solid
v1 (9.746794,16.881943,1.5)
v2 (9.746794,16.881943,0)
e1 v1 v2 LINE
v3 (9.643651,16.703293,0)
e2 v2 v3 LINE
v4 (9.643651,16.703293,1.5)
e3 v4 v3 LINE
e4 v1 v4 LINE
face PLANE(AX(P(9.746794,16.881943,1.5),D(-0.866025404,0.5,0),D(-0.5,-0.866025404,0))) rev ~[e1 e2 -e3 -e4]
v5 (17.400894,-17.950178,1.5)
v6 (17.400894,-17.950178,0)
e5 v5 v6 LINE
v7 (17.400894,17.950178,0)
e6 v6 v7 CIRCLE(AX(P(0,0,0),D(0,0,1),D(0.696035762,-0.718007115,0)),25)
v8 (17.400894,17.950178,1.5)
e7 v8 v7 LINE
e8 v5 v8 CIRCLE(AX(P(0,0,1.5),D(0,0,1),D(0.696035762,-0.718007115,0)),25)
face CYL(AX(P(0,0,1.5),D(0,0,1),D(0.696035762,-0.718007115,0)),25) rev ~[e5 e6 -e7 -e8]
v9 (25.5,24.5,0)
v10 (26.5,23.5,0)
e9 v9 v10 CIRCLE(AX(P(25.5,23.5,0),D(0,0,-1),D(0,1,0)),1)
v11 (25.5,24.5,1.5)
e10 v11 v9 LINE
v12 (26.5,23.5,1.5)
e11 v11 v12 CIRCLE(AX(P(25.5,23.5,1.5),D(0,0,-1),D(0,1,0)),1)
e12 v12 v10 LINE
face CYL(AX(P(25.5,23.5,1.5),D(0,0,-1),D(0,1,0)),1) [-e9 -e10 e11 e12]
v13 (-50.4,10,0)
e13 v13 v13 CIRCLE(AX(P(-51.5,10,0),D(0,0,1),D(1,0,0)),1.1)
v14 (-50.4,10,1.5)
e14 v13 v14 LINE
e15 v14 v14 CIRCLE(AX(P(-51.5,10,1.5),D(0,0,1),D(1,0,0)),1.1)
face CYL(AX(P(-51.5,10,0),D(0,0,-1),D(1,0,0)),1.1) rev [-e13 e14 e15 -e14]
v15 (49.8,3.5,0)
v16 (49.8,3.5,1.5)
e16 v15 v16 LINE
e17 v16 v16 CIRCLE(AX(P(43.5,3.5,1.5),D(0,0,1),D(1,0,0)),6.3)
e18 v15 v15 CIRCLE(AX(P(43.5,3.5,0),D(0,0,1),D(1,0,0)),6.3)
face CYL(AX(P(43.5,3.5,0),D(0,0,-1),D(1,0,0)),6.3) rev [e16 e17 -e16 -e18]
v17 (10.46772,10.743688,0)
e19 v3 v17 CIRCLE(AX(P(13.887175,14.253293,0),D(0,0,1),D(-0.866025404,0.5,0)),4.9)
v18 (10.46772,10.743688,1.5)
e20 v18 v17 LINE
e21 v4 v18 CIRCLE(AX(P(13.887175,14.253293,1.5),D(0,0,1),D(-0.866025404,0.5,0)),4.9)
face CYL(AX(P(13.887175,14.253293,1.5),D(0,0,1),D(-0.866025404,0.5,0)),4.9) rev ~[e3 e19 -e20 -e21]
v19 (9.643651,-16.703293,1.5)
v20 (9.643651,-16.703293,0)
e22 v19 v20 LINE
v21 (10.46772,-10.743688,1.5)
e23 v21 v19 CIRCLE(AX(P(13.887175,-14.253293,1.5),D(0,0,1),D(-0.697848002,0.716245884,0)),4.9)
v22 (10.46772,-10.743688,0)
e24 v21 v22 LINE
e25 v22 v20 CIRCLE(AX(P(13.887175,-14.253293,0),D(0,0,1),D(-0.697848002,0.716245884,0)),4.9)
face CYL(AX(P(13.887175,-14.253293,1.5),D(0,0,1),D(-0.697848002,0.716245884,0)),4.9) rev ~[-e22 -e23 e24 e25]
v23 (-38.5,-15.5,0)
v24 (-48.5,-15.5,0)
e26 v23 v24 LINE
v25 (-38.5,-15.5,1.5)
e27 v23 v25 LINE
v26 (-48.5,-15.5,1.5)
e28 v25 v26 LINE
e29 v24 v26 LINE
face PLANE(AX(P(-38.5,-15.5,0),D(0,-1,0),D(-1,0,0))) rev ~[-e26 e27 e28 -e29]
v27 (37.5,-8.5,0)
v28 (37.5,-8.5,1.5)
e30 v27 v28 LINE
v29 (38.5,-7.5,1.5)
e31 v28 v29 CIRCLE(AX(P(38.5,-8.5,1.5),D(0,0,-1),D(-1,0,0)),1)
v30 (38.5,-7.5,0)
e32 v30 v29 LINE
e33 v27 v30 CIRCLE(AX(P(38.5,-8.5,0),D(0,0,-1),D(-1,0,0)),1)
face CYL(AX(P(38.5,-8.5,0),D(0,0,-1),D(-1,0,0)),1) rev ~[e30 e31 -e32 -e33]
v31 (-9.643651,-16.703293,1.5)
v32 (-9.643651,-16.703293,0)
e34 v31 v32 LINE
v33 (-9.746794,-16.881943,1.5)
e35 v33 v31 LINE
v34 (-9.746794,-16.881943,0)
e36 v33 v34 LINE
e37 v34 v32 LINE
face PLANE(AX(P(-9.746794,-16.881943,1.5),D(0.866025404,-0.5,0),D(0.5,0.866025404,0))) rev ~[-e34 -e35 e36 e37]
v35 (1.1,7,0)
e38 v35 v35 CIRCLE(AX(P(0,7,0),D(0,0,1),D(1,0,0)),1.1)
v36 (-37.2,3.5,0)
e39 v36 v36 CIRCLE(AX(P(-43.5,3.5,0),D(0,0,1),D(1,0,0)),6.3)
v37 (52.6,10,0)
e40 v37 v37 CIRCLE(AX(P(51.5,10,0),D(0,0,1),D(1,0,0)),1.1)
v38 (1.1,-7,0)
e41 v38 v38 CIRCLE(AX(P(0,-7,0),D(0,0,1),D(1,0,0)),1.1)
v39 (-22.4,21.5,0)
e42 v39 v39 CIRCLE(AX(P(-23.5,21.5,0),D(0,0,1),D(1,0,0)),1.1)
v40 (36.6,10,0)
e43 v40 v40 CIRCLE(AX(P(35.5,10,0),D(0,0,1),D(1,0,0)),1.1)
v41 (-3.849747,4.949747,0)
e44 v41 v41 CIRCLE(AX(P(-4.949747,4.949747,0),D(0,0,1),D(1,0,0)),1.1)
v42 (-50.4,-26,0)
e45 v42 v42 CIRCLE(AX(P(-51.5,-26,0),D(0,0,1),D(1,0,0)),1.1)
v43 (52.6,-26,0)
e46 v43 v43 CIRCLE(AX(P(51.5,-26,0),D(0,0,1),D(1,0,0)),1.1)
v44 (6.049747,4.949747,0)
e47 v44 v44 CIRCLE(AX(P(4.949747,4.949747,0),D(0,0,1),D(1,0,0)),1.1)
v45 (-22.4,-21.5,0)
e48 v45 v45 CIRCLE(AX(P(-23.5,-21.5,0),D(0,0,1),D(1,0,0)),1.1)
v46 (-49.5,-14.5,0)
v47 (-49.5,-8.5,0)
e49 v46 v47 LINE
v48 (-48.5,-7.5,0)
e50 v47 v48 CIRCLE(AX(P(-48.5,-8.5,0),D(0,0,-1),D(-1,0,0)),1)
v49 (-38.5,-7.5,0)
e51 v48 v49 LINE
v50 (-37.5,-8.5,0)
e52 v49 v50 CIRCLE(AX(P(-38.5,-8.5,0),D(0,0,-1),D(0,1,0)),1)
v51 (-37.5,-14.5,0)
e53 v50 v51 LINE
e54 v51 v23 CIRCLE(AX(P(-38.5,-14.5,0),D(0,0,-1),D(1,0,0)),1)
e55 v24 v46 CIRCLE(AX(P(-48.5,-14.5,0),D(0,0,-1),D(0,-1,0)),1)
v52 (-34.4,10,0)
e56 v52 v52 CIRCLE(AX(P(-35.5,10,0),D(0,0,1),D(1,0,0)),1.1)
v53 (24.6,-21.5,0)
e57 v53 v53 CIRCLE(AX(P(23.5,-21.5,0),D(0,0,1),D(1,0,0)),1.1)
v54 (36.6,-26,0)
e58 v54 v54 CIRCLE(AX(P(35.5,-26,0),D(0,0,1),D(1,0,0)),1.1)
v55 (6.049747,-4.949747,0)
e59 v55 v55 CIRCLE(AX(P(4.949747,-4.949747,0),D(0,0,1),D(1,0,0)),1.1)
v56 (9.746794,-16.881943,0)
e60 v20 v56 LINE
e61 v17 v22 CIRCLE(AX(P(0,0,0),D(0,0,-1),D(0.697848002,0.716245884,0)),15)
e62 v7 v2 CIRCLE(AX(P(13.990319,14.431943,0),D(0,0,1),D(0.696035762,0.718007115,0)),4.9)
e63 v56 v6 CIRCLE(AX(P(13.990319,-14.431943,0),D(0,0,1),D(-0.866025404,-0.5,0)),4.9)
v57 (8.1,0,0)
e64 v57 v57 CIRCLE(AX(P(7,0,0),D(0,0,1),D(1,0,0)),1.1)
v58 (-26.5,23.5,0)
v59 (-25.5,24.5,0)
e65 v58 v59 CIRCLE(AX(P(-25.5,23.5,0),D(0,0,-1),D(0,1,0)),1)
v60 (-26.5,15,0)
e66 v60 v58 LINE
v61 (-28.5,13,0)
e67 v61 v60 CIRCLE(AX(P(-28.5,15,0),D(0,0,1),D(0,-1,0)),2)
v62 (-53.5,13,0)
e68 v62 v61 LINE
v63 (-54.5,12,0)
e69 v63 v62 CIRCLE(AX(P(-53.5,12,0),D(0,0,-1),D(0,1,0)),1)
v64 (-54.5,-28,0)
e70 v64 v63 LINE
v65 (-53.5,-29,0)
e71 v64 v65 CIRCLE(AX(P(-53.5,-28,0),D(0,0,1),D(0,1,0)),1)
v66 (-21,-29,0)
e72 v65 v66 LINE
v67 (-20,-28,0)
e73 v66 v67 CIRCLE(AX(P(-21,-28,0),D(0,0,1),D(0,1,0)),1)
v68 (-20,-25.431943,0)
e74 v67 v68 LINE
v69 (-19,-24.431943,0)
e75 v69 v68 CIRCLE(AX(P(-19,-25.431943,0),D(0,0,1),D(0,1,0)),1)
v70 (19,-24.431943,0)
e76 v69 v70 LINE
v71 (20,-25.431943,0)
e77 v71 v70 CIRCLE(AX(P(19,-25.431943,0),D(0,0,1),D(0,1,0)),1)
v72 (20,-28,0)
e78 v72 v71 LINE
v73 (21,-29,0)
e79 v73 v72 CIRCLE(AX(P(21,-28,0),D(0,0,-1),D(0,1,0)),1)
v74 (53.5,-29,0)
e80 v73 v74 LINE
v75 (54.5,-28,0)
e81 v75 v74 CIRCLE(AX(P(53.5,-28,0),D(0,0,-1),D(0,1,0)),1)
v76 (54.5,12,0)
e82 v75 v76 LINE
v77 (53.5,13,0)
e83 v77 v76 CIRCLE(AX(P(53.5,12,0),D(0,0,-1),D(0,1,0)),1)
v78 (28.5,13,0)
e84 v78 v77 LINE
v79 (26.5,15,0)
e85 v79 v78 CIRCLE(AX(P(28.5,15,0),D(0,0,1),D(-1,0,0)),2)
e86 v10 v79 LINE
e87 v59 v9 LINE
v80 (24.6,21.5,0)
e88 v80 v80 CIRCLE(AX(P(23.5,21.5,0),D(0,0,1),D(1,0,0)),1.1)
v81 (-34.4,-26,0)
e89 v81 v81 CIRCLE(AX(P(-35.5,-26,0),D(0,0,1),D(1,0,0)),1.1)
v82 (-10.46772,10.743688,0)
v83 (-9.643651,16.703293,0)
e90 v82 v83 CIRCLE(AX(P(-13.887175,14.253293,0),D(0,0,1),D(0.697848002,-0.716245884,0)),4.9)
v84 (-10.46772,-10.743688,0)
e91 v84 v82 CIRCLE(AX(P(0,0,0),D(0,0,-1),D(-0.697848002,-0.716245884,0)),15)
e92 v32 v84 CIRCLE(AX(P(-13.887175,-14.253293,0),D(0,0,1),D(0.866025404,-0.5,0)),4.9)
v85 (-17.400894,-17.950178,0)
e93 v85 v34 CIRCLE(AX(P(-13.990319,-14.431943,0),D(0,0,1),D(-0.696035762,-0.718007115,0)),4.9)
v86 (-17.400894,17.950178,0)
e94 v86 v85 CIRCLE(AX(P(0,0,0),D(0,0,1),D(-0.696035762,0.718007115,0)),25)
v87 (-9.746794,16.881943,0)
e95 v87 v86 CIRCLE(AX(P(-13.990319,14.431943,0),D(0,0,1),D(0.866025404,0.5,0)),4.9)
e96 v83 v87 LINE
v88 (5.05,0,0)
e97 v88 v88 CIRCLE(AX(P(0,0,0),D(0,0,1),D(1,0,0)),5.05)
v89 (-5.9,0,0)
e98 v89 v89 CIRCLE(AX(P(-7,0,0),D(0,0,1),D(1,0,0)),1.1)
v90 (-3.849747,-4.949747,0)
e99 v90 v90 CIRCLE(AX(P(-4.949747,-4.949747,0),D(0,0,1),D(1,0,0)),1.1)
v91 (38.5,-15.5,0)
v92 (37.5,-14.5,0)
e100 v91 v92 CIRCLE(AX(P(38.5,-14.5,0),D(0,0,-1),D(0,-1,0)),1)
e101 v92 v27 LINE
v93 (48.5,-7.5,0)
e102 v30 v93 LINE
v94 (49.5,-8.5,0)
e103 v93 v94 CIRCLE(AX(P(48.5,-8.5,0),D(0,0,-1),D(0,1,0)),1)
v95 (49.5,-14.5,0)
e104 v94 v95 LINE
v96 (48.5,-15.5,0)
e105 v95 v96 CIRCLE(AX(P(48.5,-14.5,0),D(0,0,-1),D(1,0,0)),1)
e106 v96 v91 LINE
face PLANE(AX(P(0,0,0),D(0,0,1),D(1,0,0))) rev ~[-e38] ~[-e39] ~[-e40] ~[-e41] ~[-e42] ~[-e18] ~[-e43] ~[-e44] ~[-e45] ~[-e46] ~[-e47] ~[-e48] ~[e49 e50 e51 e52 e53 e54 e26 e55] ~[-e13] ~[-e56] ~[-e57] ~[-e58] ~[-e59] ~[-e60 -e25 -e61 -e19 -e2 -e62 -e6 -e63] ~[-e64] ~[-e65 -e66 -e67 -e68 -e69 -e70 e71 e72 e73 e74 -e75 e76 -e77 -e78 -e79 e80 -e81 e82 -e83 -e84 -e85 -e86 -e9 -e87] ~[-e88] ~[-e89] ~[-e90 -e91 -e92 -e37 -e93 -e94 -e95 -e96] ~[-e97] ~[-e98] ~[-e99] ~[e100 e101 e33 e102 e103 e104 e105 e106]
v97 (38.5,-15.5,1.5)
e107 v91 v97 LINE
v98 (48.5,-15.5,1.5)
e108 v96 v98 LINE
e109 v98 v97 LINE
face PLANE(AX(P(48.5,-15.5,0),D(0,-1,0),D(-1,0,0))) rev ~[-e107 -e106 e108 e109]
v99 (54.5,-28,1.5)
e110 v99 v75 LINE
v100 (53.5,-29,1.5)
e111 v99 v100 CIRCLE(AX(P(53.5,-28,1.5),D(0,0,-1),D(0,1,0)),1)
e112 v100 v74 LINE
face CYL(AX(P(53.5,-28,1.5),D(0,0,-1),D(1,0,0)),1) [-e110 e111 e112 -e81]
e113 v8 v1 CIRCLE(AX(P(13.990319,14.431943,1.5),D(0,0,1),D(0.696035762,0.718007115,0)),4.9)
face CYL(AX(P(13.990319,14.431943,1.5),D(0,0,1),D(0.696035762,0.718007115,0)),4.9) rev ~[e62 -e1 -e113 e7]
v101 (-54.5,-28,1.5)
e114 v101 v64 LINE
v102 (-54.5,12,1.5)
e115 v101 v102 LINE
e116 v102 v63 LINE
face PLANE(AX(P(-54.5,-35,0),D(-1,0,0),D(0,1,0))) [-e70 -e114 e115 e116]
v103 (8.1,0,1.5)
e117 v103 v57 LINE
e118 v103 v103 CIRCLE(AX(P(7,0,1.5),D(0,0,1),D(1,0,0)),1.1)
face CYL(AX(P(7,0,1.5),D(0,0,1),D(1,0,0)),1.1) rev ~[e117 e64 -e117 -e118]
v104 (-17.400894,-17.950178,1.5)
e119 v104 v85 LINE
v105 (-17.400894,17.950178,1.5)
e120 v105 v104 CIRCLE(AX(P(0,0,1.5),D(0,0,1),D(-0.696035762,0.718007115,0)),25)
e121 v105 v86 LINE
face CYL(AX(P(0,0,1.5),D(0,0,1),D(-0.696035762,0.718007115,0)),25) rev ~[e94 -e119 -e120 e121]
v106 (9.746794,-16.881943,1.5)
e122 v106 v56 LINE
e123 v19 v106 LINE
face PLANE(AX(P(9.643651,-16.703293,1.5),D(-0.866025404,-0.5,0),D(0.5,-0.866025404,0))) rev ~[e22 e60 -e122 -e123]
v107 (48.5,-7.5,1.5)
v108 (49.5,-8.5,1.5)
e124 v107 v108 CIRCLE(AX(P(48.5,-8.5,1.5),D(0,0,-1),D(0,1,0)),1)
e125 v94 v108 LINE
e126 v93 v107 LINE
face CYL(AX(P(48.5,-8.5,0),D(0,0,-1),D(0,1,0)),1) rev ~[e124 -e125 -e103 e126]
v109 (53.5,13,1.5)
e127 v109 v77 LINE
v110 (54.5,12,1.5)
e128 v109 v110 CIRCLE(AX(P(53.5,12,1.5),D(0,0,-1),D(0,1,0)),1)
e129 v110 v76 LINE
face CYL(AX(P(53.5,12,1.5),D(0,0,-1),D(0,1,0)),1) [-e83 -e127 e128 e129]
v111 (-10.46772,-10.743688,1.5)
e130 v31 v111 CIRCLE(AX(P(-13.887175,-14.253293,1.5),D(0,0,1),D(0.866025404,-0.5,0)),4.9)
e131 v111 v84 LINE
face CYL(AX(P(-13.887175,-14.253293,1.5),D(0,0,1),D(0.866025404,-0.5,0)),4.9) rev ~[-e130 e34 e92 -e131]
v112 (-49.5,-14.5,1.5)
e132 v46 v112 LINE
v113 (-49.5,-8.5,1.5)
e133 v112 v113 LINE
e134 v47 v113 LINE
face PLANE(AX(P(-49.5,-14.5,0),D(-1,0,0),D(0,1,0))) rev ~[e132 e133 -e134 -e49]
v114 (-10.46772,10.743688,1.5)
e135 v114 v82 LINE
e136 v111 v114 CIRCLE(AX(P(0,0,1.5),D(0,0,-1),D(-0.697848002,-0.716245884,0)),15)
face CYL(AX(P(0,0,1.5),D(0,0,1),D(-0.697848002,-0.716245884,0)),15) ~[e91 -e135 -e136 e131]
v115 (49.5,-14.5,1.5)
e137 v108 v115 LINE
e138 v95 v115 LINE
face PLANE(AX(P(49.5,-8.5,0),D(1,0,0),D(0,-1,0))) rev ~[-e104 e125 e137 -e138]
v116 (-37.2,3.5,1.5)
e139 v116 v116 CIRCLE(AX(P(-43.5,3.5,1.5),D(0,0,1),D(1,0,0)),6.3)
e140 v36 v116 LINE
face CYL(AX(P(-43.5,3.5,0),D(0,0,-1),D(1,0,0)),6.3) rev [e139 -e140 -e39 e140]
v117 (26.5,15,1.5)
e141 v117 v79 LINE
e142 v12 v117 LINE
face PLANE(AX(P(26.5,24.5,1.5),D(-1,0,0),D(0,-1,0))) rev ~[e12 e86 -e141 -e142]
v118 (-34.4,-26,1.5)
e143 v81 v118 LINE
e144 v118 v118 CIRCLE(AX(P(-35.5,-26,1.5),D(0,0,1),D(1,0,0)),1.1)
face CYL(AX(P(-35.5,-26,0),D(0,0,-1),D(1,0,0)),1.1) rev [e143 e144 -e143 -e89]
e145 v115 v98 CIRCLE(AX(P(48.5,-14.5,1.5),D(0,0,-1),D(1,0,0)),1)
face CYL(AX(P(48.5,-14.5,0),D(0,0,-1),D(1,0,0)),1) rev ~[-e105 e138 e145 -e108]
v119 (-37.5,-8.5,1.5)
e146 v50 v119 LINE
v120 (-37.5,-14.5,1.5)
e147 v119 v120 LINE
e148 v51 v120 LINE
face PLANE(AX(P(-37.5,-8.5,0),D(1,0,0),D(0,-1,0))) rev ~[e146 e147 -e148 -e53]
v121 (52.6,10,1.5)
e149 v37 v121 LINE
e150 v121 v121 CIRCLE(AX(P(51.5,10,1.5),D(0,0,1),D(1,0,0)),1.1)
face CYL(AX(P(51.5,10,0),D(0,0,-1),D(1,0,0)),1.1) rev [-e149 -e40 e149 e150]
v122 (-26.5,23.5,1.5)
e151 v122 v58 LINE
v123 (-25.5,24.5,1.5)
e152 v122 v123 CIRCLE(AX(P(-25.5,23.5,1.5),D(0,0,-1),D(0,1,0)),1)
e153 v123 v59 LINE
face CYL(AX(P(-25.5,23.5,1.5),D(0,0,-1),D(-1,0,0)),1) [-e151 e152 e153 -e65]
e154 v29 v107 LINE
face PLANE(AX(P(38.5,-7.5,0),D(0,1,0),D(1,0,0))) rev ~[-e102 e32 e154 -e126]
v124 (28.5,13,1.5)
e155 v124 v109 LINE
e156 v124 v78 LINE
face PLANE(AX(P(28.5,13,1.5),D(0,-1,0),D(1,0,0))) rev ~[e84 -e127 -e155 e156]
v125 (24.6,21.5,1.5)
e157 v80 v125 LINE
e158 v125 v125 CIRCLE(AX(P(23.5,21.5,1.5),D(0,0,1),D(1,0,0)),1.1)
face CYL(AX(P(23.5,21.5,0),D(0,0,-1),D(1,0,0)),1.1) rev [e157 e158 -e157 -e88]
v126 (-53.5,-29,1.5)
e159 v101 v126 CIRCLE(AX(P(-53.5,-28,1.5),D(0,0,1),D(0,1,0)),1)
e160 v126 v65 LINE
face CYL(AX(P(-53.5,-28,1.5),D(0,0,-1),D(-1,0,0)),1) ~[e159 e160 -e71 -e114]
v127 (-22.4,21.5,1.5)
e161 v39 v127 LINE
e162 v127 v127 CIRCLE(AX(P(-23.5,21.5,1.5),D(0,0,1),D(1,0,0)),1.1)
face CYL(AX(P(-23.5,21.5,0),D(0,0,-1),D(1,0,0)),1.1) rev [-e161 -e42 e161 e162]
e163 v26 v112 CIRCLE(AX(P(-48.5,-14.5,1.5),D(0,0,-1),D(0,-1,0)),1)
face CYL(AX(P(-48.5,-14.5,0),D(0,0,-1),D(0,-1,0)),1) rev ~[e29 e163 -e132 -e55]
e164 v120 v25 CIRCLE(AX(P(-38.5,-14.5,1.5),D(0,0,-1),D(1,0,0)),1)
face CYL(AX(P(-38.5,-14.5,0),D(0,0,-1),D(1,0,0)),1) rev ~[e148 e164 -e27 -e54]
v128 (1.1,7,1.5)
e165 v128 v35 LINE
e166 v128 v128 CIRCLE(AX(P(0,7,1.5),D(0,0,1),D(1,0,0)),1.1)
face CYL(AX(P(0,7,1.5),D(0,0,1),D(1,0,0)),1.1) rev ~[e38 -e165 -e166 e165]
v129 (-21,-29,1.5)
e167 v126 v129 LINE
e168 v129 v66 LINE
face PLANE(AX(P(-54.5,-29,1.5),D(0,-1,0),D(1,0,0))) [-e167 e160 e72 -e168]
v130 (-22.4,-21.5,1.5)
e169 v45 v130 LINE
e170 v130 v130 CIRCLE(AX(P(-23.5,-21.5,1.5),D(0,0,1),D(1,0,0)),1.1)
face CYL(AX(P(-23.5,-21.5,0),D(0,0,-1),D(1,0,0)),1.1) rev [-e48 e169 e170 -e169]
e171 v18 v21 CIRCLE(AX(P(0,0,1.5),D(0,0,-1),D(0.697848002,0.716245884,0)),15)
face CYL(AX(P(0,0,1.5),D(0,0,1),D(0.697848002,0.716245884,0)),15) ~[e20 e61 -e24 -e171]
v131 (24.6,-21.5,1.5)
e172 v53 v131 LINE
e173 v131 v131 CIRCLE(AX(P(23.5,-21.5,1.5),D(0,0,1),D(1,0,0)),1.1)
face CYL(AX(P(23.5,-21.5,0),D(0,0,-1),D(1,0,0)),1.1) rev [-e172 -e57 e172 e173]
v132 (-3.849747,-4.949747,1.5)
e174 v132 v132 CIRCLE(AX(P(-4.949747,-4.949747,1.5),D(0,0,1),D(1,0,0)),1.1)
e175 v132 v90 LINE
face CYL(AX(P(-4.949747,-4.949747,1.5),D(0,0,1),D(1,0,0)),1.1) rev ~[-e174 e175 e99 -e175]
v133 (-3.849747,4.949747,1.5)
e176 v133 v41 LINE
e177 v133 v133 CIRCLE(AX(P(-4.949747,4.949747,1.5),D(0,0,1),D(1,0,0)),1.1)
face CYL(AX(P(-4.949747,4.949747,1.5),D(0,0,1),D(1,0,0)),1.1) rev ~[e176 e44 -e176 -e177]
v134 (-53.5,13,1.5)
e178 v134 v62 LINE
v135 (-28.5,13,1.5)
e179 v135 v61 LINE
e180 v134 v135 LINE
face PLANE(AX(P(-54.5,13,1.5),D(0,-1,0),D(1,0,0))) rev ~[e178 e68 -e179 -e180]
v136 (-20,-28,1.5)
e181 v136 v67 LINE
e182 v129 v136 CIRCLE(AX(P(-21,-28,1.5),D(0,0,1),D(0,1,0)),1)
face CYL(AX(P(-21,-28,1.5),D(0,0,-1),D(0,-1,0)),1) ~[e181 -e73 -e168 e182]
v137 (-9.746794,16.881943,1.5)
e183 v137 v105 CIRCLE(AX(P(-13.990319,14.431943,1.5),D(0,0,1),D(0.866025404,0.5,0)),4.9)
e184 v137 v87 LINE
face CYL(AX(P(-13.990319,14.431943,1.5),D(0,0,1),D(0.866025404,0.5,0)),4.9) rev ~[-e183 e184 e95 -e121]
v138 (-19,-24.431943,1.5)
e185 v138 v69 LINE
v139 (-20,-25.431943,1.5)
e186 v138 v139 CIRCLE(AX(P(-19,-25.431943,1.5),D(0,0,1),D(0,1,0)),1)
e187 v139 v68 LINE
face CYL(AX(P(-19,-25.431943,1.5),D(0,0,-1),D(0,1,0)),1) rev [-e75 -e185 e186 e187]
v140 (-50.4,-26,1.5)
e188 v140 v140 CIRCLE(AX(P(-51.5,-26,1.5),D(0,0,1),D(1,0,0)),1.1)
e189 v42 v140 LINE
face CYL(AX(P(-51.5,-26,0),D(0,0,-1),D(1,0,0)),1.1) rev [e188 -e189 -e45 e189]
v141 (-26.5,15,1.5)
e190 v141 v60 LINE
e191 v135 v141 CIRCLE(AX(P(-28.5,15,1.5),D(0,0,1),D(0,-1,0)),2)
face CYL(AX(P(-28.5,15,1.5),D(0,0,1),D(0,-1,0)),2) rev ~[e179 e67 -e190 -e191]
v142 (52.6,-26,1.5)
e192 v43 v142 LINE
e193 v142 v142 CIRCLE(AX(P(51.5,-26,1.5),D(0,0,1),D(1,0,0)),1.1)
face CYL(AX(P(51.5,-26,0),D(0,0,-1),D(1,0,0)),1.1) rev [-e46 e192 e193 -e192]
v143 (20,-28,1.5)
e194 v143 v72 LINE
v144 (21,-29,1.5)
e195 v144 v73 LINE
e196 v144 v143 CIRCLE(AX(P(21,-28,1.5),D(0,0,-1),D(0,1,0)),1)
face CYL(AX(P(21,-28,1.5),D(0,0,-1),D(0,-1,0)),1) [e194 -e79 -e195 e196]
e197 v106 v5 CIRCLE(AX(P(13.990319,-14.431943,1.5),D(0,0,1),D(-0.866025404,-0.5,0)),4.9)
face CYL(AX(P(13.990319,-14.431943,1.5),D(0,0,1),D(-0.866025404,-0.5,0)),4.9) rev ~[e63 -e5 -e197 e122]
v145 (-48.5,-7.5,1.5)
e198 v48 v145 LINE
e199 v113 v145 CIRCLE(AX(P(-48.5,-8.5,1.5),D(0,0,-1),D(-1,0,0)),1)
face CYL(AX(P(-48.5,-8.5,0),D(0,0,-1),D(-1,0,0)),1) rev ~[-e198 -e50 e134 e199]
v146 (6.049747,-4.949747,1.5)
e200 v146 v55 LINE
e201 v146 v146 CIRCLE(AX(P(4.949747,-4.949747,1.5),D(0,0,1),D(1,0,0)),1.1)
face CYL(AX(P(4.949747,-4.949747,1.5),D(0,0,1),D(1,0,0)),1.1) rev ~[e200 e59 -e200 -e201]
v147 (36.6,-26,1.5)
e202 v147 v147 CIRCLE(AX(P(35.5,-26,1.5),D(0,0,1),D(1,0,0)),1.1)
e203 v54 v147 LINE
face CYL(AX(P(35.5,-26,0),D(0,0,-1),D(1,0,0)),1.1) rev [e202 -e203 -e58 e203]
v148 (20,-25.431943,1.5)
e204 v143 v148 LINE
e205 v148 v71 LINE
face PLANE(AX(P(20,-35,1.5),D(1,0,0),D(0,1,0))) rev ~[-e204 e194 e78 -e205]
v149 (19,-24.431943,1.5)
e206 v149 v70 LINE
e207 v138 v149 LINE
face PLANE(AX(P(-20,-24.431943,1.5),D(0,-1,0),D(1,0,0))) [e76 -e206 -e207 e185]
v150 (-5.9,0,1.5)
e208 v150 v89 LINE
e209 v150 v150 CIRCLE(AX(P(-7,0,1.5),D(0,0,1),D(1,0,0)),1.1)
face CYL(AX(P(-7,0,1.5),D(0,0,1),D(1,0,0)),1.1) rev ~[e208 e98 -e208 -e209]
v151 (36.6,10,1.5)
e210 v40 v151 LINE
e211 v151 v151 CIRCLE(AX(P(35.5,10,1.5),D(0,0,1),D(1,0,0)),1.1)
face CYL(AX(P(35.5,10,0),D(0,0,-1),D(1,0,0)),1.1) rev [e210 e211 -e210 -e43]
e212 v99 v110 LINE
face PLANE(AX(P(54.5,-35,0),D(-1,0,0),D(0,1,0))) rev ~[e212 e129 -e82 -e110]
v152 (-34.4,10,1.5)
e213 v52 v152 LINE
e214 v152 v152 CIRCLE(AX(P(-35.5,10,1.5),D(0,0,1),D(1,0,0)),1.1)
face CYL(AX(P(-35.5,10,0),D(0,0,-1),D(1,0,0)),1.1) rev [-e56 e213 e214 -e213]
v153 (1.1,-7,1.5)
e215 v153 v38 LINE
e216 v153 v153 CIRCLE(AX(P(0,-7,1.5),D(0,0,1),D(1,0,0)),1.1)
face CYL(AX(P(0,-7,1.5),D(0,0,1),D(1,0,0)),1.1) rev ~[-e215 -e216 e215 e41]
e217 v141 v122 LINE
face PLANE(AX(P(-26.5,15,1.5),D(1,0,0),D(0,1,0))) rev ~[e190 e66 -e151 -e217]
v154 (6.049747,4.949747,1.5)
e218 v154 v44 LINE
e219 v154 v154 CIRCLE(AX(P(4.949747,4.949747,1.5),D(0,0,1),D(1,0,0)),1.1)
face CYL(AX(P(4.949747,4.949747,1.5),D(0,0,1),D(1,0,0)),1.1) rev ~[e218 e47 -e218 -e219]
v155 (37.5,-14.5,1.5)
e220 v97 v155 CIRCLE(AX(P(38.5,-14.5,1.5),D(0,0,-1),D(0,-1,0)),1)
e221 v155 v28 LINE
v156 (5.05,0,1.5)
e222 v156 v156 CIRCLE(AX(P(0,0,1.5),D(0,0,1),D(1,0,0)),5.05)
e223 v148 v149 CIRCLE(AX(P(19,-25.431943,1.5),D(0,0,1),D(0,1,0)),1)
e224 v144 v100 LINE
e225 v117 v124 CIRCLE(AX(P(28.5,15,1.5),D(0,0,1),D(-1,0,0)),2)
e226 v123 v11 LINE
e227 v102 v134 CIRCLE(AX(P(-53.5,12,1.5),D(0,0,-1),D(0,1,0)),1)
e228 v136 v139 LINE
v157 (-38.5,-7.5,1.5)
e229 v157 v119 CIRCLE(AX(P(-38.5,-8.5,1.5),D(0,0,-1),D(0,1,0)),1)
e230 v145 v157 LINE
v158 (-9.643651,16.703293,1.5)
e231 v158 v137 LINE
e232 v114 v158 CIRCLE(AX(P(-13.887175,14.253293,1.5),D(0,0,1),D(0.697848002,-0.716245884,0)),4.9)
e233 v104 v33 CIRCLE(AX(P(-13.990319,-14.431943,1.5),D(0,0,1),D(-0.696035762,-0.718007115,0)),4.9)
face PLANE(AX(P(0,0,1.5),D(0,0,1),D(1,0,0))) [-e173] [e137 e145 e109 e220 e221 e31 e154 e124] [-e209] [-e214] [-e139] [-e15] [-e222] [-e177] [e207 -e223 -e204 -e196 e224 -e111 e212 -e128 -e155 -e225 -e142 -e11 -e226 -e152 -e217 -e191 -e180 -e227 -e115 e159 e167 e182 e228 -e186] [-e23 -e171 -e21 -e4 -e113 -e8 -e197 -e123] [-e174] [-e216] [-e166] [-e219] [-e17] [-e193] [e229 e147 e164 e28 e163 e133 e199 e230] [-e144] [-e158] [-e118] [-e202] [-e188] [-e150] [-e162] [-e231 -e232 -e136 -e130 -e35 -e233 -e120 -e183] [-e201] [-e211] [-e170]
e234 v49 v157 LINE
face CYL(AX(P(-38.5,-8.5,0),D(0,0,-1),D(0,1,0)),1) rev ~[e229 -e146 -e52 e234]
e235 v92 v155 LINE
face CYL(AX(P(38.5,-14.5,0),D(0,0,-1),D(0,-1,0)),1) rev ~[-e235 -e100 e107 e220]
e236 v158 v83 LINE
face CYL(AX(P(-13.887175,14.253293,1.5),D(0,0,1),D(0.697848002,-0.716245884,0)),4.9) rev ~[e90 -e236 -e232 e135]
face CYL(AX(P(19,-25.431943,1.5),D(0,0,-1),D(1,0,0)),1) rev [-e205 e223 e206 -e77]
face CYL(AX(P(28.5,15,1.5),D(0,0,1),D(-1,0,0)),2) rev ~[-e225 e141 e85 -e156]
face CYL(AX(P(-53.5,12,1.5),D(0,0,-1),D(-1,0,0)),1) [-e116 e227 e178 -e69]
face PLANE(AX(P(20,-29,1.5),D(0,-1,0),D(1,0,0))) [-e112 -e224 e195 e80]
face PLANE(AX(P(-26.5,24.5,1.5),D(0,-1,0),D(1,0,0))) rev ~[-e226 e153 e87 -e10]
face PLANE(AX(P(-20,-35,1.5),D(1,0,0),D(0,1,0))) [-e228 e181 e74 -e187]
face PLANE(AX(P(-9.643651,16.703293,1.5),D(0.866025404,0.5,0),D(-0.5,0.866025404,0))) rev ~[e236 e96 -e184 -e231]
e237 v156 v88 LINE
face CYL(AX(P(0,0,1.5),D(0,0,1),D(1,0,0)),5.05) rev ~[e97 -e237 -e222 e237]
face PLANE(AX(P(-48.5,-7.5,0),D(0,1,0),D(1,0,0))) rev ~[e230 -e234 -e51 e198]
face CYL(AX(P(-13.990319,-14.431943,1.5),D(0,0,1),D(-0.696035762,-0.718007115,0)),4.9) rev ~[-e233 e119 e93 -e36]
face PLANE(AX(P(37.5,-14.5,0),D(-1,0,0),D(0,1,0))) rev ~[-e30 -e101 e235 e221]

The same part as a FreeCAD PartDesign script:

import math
import FreeCAD as App
import Part
import Sketcher

V = App.Vector
Q = App.Units.Quantity


def edges_at(feature, points):
    """Names of the edges that pass closest to the given points."""
    edges = feature.Shape.Edges
    near = lambda p: min(range(len(edges)), key=lambda i: edges[i].distToShape(Part.Vertex(*p))[0])
    return sorted({f"Edge{near(p) + 1}" for p in points})

doc = App.newDocument("Part")
params = doc.addObject("Spreadsheet::Sheet", "Params")
for row, (alias, value) in enumerate([
    ("sketch1_radius", "1 mm"),
    ("sketch1_diameter", "2.2 mm"),
    ("sketch1_diameter2", "12.6 mm"),
    ("sketch1_width", "109 mm"),
    ("sketch1_width2", "10 mm"),
    ("pad1_length", "1.5 mm"),
    ("sketch2_radius", "25 mm"),
    ("sketch2_radius2", "15 mm"),
    ("sketch2_radius3", "2 mm"),
    ("sketch2_diameter", "10.1 mm"),
    ("sketch2_diameter2", "2.2 mm"),
    ("sketch3_height", "6 mm"),
    ("sketch3_width", "34.5 mm"),
    ("fillet_radius", "1 mm"),
], start=1):
    params.set(f"A{row}", alias)
    params.set(f"B{row}", "=" + value)
    params.setAlias(f"B{row}", alias)

body = doc.addObject("PartDesign::Body", "Body")

# Sketch on XY plane
sketch1 = doc.addObject("Sketcher::SketchObject", "Sketch")
body.addObject(sketch1)
sketch1.AttachmentSupport = (doc.XY_Plane, [""])
sketch1.MapMode = "FlatFace"
sketch1.addGeometry(Part.LineSegment(V(-54.5, 35, 0), V(-54.5, -35, 0)), False)
sketch1.addGeometry(Part.LineSegment(V(-54.5, -35, 0), V(54.5, -35, 0)), False)
sketch1.addGeometry(Part.LineSegment(V(54.5, -35, 0), V(54.5, 35, 0)), False)
sketch1.addGeometry(Part.LineSegment(V(54.5, 35, 0), V(-54.5, 35, 0)), False)
sketch1.addGeometry(Part.Circle(V(-51.5, -26, 0), V(0, 0, 1), 1.1), False)
sketch1.addGeometry(Part.Circle(V(-35.5, -26, 0), V(0, 0, 1), 1.1), False)
sketch1.addGeometry(Part.Circle(V(-23.5, -21.5, 0), V(0, 0, 1), 1.1), False)
sketch1.addGeometry(Part.LineSegment(V(-37.5, -8.5, 0), V(-37.5, -14.5, 0)), False)
sketch1.addGeometry(Part.ArcOfCircle(Part.Circle(V(-38.5, -14.5, 0), V(0, 0, 1), 1), math.radians(-90), math.radians(0)), False)
sketch1.addGeometry(Part.LineSegment(V(-38.5, -15.5, 0), V(-48.5, -15.5, 0)), False)
sketch1.addGeometry(Part.ArcOfCircle(Part.Circle(V(-48.5, -14.5, 0), V(0, 0, 1), 1), math.radians(180), math.radians(270)), False)
sketch1.addGeometry(Part.LineSegment(V(-49.5, -14.5, 0), V(-49.5, -8.5, 0)), False)
sketch1.addGeometry(Part.ArcOfCircle(Part.Circle(V(-48.5, -8.5, 0), V(0, 0, 1), 1), math.radians(90), math.radians(180)), False)
sketch1.addGeometry(Part.LineSegment(V(-48.5, -7.5, 0), V(-38.5, -7.5, 0)), False)
sketch1.addGeometry(Part.ArcOfCircle(Part.Circle(V(-38.5, -8.5, 0), V(0, 0, 1), 1), math.radians(0), math.radians(90)), False)
sketch1.addGeometry(Part.Circle(V(23.5, -21.5, 0), V(0, 0, 1), 1.1), False)
sketch1.addGeometry(Part.Circle(V(35.5, -26, 0), V(0, 0, 1), 1.1), False)
sketch1.addGeometry(Part.Circle(V(51.5, -26, 0), V(0, 0, 1), 1.1), False)
sketch1.addGeometry(Part.ArcOfCircle(Part.Circle(V(38.5, -8.5, 0), V(0, 0, 1), 1), math.radians(90), math.radians(180)), False)
sketch1.addGeometry(Part.LineSegment(V(38.5, -7.5, 0), V(48.5, -7.5, 0)), False)
sketch1.addGeometry(Part.ArcOfCircle(Part.Circle(V(48.5, -8.5, 0), V(0, 0, 1), 1), math.radians(0), math.radians(90)), False)
sketch1.addGeometry(Part.LineSegment(V(49.5, -8.5, 0), V(49.5, -14.5, 0)), False)
sketch1.addGeometry(Part.ArcOfCircle(Part.Circle(V(48.5, -14.5, 0), V(0, 0, 1), 1), math.radians(-90), math.radians(0)), False)
sketch1.addGeometry(Part.LineSegment(V(48.5, -15.5, 0), V(38.5, -15.5, 0)), False)
sketch1.addGeometry(Part.ArcOfCircle(Part.Circle(V(38.5, -14.5, 0), V(0, 0, 1), 1), math.radians(180), math.radians(270)), False)
sketch1.addGeometry(Part.LineSegment(V(37.5, -14.5, 0), V(37.5, -8.5, 0)), False)
sketch1.addGeometry(Part.Circle(V(-43.5, 3.5, 0), V(0, 0, 1), 6.3), False)
sketch1.addGeometry(Part.Circle(V(-51.5, 10, 0), V(0, 0, 1), 1.1), False)
sketch1.addGeometry(Part.Circle(V(-35.5, 10, 0), V(0, 0, 1), 1.1), False)
sketch1.addGeometry(Part.Circle(V(-23.5, 21.5, 0), V(0, 0, 1), 1.1), False)
sketch1.addGeometry(Part.Circle(V(43.5, 3.5, 0), V(0, 0, 1), 6.3), False)
sketch1.addGeometry(Part.Circle(V(35.5, 10, 0), V(0, 0, 1), 1.1), False)
sketch1.addGeometry(Part.Circle(V(51.5, 10, 0), V(0, 0, 1), 1.1), False)
sketch1.addGeometry(Part.Circle(V(23.5, 21.5, 0), V(0, 0, 1), 1.1), False)
sketch1.addConstraint(Sketcher.Constraint("Coincident", 0, 2, 1, 1))
sketch1.addConstraint(Sketcher.Constraint("Coincident", 1, 2, 2, 1))
sketch1.addConstraint(Sketcher.Constraint("Coincident", 2, 2, 3, 1))
sketch1.addConstraint(Sketcher.Constraint("Coincident", 3, 2, 0, 1))
sketch1.addConstraint(Sketcher.Constraint("Tangent", 7, 2, 8, 2))
sketch1.addConstraint(Sketcher.Constraint("Tangent", 8, 1, 9, 1))
sketch1.addConstraint(Sketcher.Constraint("Tangent", 9, 2, 10, 2))
sketch1.addConstraint(Sketcher.Constraint("Tangent", 10, 1, 11, 1))
sketch1.addConstraint(Sketcher.Constraint("Tangent", 11, 2, 12, 2))
sketch1.addConstraint(Sketcher.Constraint("Tangent", 12, 1, 13, 1))
sketch1.addConstraint(Sketcher.Constraint("Tangent", 13, 2, 14, 2))
sketch1.addConstraint(Sketcher.Constraint("Tangent", 14, 1, 7, 1))
sketch1.addConstraint(Sketcher.Constraint("Tangent", 18, 1, 19, 1))
sketch1.addConstraint(Sketcher.Constraint("Tangent", 19, 2, 20, 2))
sketch1.addConstraint(Sketcher.Constraint("Tangent", 20, 1, 21, 1))
sketch1.addConstraint(Sketcher.Constraint("Tangent", 21, 2, 22, 2))
sketch1.addConstraint(Sketcher.Constraint("Tangent", 22, 1, 23, 1))
sketch1.addConstraint(Sketcher.Constraint("Tangent", 23, 2, 24, 2))
sketch1.addConstraint(Sketcher.Constraint("Tangent", 24, 1, 25, 1))
sketch1.addConstraint(Sketcher.Constraint("Tangent", 25, 2, 18, 2))
sketch1.addConstraint(Sketcher.Constraint("Vertical", 0))
sketch1.addConstraint(Sketcher.Constraint("Horizontal", 1))
sketch1.addConstraint(Sketcher.Constraint("Vertical", 2))
sketch1.addConstraint(Sketcher.Constraint("Horizontal", 3))
sketch1.addConstraint(Sketcher.Constraint("Vertical", 7))
sketch1.addConstraint(Sketcher.Constraint("Horizontal", 9))
sketch1.addConstraint(Sketcher.Constraint("Vertical", 11))
sketch1.addConstraint(Sketcher.Constraint("Horizontal", 13))
sketch1.addConstraint(Sketcher.Constraint("Horizontal", 19))
sketch1.addConstraint(Sketcher.Constraint("Vertical", 21))
sketch1.addConstraint(Sketcher.Constraint("Horizontal", 23))
sketch1.addConstraint(Sketcher.Constraint("Vertical", 25))
sketch1.addConstraint(Sketcher.Constraint("Equal", 4, 5))
sketch1.addConstraint(Sketcher.Constraint("Equal", 5, 6))
sketch1.addConstraint(Sketcher.Constraint("Equal", 8, 10))
sketch1.addConstraint(Sketcher.Constraint("Equal", 10, 12))
sketch1.addConstraint(Sketcher.Constraint("Equal", 12, 14))
sketch1.addConstraint(Sketcher.Constraint("Equal", 6, 15))
sketch1.addConstraint(Sketcher.Constraint("Equal", 15, 16))
sketch1.addConstraint(Sketcher.Constraint("Equal", 16, 17))
sketch1.addConstraint(Sketcher.Constraint("Equal", 14, 18))
sketch1.addConstraint(Sketcher.Constraint("Equal", 18, 20))
sketch1.addConstraint(Sketcher.Constraint("Equal", 20, 22))
sketch1.addConstraint(Sketcher.Constraint("Equal", 22, 24))
sketch1.addConstraint(Sketcher.Constraint("Equal", 17, 27))
sketch1.addConstraint(Sketcher.Constraint("Equal", 27, 28))
sketch1.addConstraint(Sketcher.Constraint("Equal", 28, 29))
sketch1.addConstraint(Sketcher.Constraint("Equal", 26, 30))
sketch1.addConstraint(Sketcher.Constraint("Equal", 29, 31))
sketch1.addConstraint(Sketcher.Constraint("Equal", 31, 32))
sketch1.addConstraint(Sketcher.Constraint("Equal", 32, 33))
sketch1.addConstraint(Sketcher.Constraint("Symmetric", 15, 3, 29, 3, -1, 1))
sketch1.addConstraint(Sketcher.Constraint("Symmetric", 6, 3, 33, 3, -1, 1))
sketch1.addConstraint(Sketcher.Constraint("Symmetric", 0, 2, 2, 2, -1, 1))
sketch1.addConstraint(Sketcher.Constraint("Symmetric", 6, 3, 15, 3, -2))
sketch1.addConstraint(Sketcher.Constraint("Symmetric", 5, 3, 16, 3, -2))
sketch1.addConstraint(Sketcher.Constraint("Symmetric", 4, 3, 17, 3, -2))
sketch1.addConstraint(Sketcher.Constraint("Symmetric", 14, 3, 18, 3, -2))
sketch1.addConstraint(Sketcher.Constraint("Symmetric", 10, 3, 22, 3, -2))
sketch1.addConstraint(Sketcher.Constraint("Symmetric", 26, 3, 30, 3, -2))
sketch1.addConstraint(Sketcher.Constraint("Symmetric", 28, 3, 31, 3, -2))
sketch1.addConstraint(Sketcher.Constraint("Symmetric", 27, 3, 32, 3, -2))
sketch1.addConstraint(Sketcher.Constraint("Horizontal", 4, 3, 5, 3))
sketch1.addConstraint(Sketcher.Constraint("Horizontal", 27, 3, 28, 3))
sketch1.addConstraint(Sketcher.Constraint("Vertical", 4, 3, 27, 3))
sketch1.addConstraint(Sketcher.Constraint("Vertical", 5, 3, 28, 3))
sketch1.addConstraint(Sketcher.Constraint("Radius", 8, 1.0))
sketch1.addConstraint(Sketcher.Constraint("Diameter", 4, 2.2))
sketch1.addConstraint(Sketcher.Constraint("Diameter", 26, 12.6))
sketch1.addConstraint(Sketcher.Constraint("DistanceX", 1, 1, 1, 2, 109.0))
sketch1.addConstraint(Sketcher.Constraint("DistanceX", 9, 2, 9, 1, 10.0))
sketch1.addConstraint(Sketcher.Constraint("DistanceY", 0, 2, 0, 1, 70.0))
sketch1.addConstraint(Sketcher.Constraint("DistanceY", 7, 2, 7, 1, 6.0))
sketch1.addConstraint(Sketcher.Constraint("DistanceY", 4, 3, -1, 1, 26.0))
sketch1.addConstraint(Sketcher.Constraint("DistanceY", -1, 1, 27, 3, 10.0))
sketch1.addConstraint(Sketcher.Constraint("DistanceX", 4, 3, 5, 3, 16.0))
sketch1.addConstraint(Sketcher.Constraint("DistanceX", 5, 3, 6, 3, 12.0))
sketch1.addConstraint(Sketcher.Constraint("DistanceX", 8, 3, 5, 3, 3.0))
sketch1.addConstraint(Sketcher.Constraint("DistanceY", 6, 3, 8, 3, 7.0))
sketch1.addConstraint(Sketcher.Constraint("DistanceX", 6, 3, 15, 3, 47.0))
sketch1.addConstraint(Sketcher.Constraint("DistanceX", 12, 3, 26, 3, 5.0))
sketch1.addConstraint(Sketcher.Constraint("DistanceY", 12, 3, 26, 3, 12.0))
sketch1.addConstraint(Sketcher.Constraint("DistanceY", 26, 3, 29, 3, 18.0))
sketch1.setExpression("Constraints[66]", "Params.sketch1_radius")
sketch1.setExpression("Constraints[67]", "Params.sketch1_diameter")
sketch1.setExpression("Constraints[68]", "Params.sketch1_diameter2")
sketch1.setExpression("Constraints[69]", "Params.sketch1_width")
sketch1.setExpression("Constraints[70]", "Params.sketch1_width2")
pad1 = doc.addObject("PartDesign::Pad", "Pad")
body.addObject(pad1)
pad1.Profile = sketch1
pad1.setExpression("Length", "Params.pad1_length")

# Sketch on XY plane
sketch2 = doc.addObject("Sketcher::SketchObject", "Sketch001")
body.addObject(sketch2)
sketch2.AttachmentSupport = (doc.XY_Plane, [""])
sketch2.MapMode = "FlatFace"
sketch2.AttachmentOffset = App.Placement(V(0, 0, 1.5), App.Rotation())
sketch2.addGeometry(Part.Circle(V(0, 0, 0), V(0, 0, 1), 5.05), False)
sketch2.addGeometry(Part.Circle(V(0, 7, 0), V(0, 0, 1), 1.1), False)
sketch2.addGeometry(Part.Circle(V(-4.95, 4.95, 0), V(0, 0, 1), 1.1), False)
sketch2.addGeometry(Part.Circle(V(-7, 0, 0), V(0, 0, 1), 1.1), False)
sketch2.addGeometry(Part.Circle(V(-4.95, -4.95, 0), V(0, 0, 1), 1.1), False)
sketch2.addGeometry(Part.Circle(V(0, -7, 0), V(0, 0, 1), 1.1), False)
sketch2.addGeometry(Part.Circle(V(4.95, -4.95, 0), V(0, 0, 1), 1.1), False)
sketch2.addGeometry(Part.Circle(V(7, 0, 0), V(0, 0, 1), 1.1), False)
sketch2.addGeometry(Part.Circle(V(4.95, 4.95, 0), V(0, 0, 1), 1.1), False)
sketch2.addGeometry(Part.ArcOfCircle(Part.Circle(V(-13.99, 14.43, 0), V(0, 0, 1), 4.9), math.radians(30), math.radians(134)), False)
sketch2.addGeometry(Part.ArcOfCircle(Part.Circle(V(0, 0, 0), V(0, 0, 1), 25), math.radians(134), math.radians(226)), False)
sketch2.addGeometry(Part.ArcOfCircle(Part.Circle(V(-13.99, -14.43, 0), V(0, 0, 1), 4.9), math.radians(-134), math.radians(-30)), False)
sketch2.addGeometry(Part.LineSegment(V(-9.75, -16.88, 0), V(-9.64, -16.7, 0)), False)
sketch2.addGeometry(Part.ArcOfCircle(Part.Circle(V(-13.89, -14.25, 0), V(0, 0, 1), 4.9), math.radians(-30), math.radians(46)), False)
sketch2.addGeometry(Part.ArcOfCircle(Part.Circle(V(0, 0, 0), V(0, 0, 1), 15), math.radians(134), math.radians(226)), False)
sketch2.addGeometry(Part.ArcOfCircle(Part.Circle(V(-13.89, 14.25, 0), V(0, 0, 1), 4.9), math.radians(-46), math.radians(30)), False)
sketch2.addGeometry(Part.LineSegment(V(-9.64, 16.7, 0), V(-9.75, 16.88, 0)), False)
sketch2.addGeometry(Part.ArcOfCircle(Part.Circle(V(13.99, 14.43, 0), V(0, 0, 1), 4.9), math.radians(46), math.radians(150)), False)
sketch2.addGeometry(Part.LineSegment(V(9.75, 16.88, 0), V(9.64, 16.7, 0)), False)
sketch2.addGeometry(Part.ArcOfCircle(Part.Circle(V(13.89, 14.25, 0), V(0, 0, 1), 4.9), math.radians(150), math.radians(226)), False)
sketch2.addGeometry(Part.ArcOfCircle(Part.Circle(V(0, 0, 0), V(0, 0, 1), 15), math.radians(-46), math.radians(46)), False)
sketch2.addGeometry(Part.ArcOfCircle(Part.Circle(V(13.89, -14.25, 0), V(0, 0, 1), 4.9), math.radians(134), math.radians(210)), False)
sketch2.addGeometry(Part.LineSegment(V(9.64, -16.7, 0), V(9.75, -16.88, 0)), False)
sketch2.addGeometry(Part.ArcOfCircle(Part.Circle(V(13.99, -14.43, 0), V(0, 0, 1), 4.9), math.radians(-150), math.radians(-46)), False)
sketch2.addGeometry(Part.ArcOfCircle(Part.Circle(V(0, 0, 0), V(0, 0, 1), 25), math.radians(-46), math.radians(46)), False)
sketch2.addGeometry(Part.LineSegment(V(-54.5, 35, 0), V(-54.5, 13, 0)), False)
sketch2.addGeometry(Part.LineSegment(V(-54.5, 13, 0), V(-28.5, 13, 0)), False)
sketch2.addGeometry(Part.ArcOfCircle(Part.Circle(V(-28.5, 15, 0), V(0, 0, 1), 2), math.radians(-90), math.radians(0)), False)
sketch2.addGeometry(Part.LineSegment(V(-26.5, 15, 0), V(-26.5, 24.5, 0)), False)
sketch2.addGeometry(Part.LineSegment(V(-26.5, 24.5, 0), V(26.5, 24.5, 0)), False)
sketch2.addGeometry(Part.LineSegment(V(26.5, 24.5, 0), V(26.5, 15, 0)), False)
sketch2.addGeometry(Part.ArcOfCircle(Part.Circle(V(28.5, 15, 0), V(0, 0, 1), 2), math.radians(180), math.radians(270)), False)
sketch2.addGeometry(Part.LineSegment(V(28.5, 13, 0), V(54.5, 13, 0)), False)
sketch2.addGeometry(Part.LineSegment(V(54.5, 13, 0), V(54.5, 35, 0)), False)
sketch2.addGeometry(Part.LineSegment(V(54.5, 35, 0), V(-54.5, 35, 0)), False)
sketch2.addGeometry(Part.LineSegment(V(-20, -24.43, 0), V(-20, -35, 0)), False)
sketch2.addGeometry(Part.LineSegment(V(-20, -35, 0), V(20, -35, 0)), False)
sketch2.addGeometry(Part.LineSegment(V(20, -35, 0), V(20, -24.43, 0)), False)
sketch2.addGeometry(Part.LineSegment(V(20, -24.43, 0), V(-20, -24.43, 0)), False)
sketch2.addConstraint(Sketcher.Constraint("Tangent", 9, 2, 10, 1))
sketch2.addConstraint(Sketcher.Constraint("Tangent", 10, 2, 11, 1))
sketch2.addConstraint(Sketcher.Constraint("Tangent", 11, 2, 12, 1))
sketch2.addConstraint(Sketcher.Constraint("Tangent", 12, 2, 13, 1))
sketch2.addConstraint(Sketcher.Constraint("Tangent", 13, 2, 14, 2))
sketch2.addConstraint(Sketcher.Constraint("Tangent", 14, 1, 15, 1))
sketch2.addConstraint(Sketcher.Constraint("Tangent", 15, 2, 16, 1))
sketch2.addConstraint(Sketcher.Constraint("Tangent", 16, 2, 9, 1))
sketch2.addConstraint(Sketcher.Constraint("Tangent", 17, 2, 18, 1))
sketch2.addConstraint(Sketcher.Constraint("Tangent", 18, 2, 19, 1))
sketch2.addConstraint(Sketcher.Constraint("Tangent", 19, 2, 20, 2))
sketch2.addConstraint(Sketcher.Constraint("Tangent", 20, 1, 21, 1))
sketch2.addConstraint(Sketcher.Constraint("Tangent", 21, 2, 22, 1))
sketch2.addConstraint(Sketcher.Constraint("Tangent", 22, 2, 23, 1))
sketch2.addConstraint(Sketcher.Constraint("Tangent", 23, 2, 24, 1))
sketch2.addConstraint(Sketcher.Constraint("Tangent", 24, 2, 17, 1))
sketch2.addConstraint(Sketcher.Constraint("Coincident", 25, 2, 26, 1))
sketch2.addConstraint(Sketcher.Constraint("Tangent", 26, 2, 27, 1))
sketch2.addConstraint(Sketcher.Constraint("Tangent", 27, 2, 28, 1))
sketch2.addConstraint(Sketcher.Constraint("Coincident", 28, 2, 29, 1))
sketch2.addConstraint(Sketcher.Constraint("Coincident", 29, 2, 30, 1))
sketch2.addConstraint(Sketcher.Constraint("Tangent", 30, 2, 31, 1))
sketch2.addConstraint(Sketcher.Constraint("Tangent", 31, 2, 32, 1))
sketch2.addConstraint(Sketcher.Constraint("Coincident", 32, 2, 33, 1))
sketch2.addConstraint(Sketcher.Constraint("Coincident", 33, 2, 34, 1))
sketch2.addConstraint(Sketcher.Constraint("Coincident", 34, 2, 25, 1))
sketch2.addConstraint(Sketcher.Constraint("Coincident", 35, 2, 36, 1))
sketch2.addConstraint(Sketcher.Constraint("Coincident", 36, 2, 37, 1))
sketch2.addConstraint(Sketcher.Constraint("Coincident", 37, 2, 38, 1))
sketch2.addConstraint(Sketcher.Constraint("Coincident", 38, 2, 35, 1))
sketch2.addConstraint(Sketcher.Constraint("Vertical", 25))
sketch2.addConstraint(Sketcher.Constraint("Horizontal", 26))
sketch2.addConstraint(Sketcher.Constraint("Vertical", 28))
sketch2.addConstraint(Sketcher.Constraint("Horizontal", 29))
sketch2.addConstraint(Sketcher.Constraint("Vertical", 30))
sketch2.addConstraint(Sketcher.Constraint("Horizontal", 32))
sketch2.addConstraint(Sketcher.Constraint("Vertical", 33))
sketch2.addConstraint(Sketcher.Constraint("Horizontal", 34))
sketch2.addConstraint(Sketcher.Constraint("Vertical", 35))
sketch2.addConstraint(Sketcher.Constraint("Horizontal", 36))
sketch2.addConstraint(Sketcher.Constraint("Vertical", 37))
sketch2.addConstraint(Sketcher.Constraint("Horizontal", 38))
sketch2.addConstraint(Sketcher.Constraint("Coincident", 0, 3, -1, 1))
sketch2.addConstraint(Sketcher.Constraint("Coincident", 10, 3, -1, 1))
sketch2.addConstraint(Sketcher.Constraint("Coincident", 14, 3, -1, 1))
sketch2.addConstraint(Sketcher.Constraint("Coincident", 20, 3, -1, 1))
sketch2.addConstraint(Sketcher.Constraint("Coincident", 24, 3, -1, 1))
sketch2.addConstraint(Sketcher.Constraint("Equal", 1, 2))
sketch2.addConstraint(Sketcher.Constraint("Equal", 2, 3))
sketch2.addConstraint(Sketcher.Constraint("Equal", 3, 4))
sketch2.addConstraint(Sketcher.Constraint("Equal", 4, 5))
sketch2.addConstraint(Sketcher.Constraint("Equal", 5, 6))
sketch2.addConstraint(Sketcher.Constraint("Equal", 6, 7))
sketch2.addConstraint(Sketcher.Constraint("Equal", 7, 8))
sketch2.addConstraint(Sketcher.Constraint("Equal", 9, 11))
sketch2.addConstraint(Sketcher.Constraint("Equal", 11, 13))
sketch2.addConstraint(Sketcher.Constraint("Equal", 13, 15))
sketch2.addConstraint(Sketcher.Constraint("Equal", 15, 17))
sketch2.addConstraint(Sketcher.Constraint("Equal", 17, 19))
sketch2.addConstraint(Sketcher.Constraint("Equal", 14, 20))
sketch2.addConstraint(Sketcher.Constraint("Equal", 19, 21))
sketch2.addConstraint(Sketcher.Constraint("Equal", 21, 23))
sketch2.addConstraint(Sketcher.Constraint("Equal", 10, 24))
sketch2.addConstraint(Sketcher.Constraint("Equal", 27, 31))
sketch2.addConstraint(Sketcher.Constraint("Symmetric", 1, 3, 5, 3, -1, 1))
sketch2.addConstraint(Sketcher.Constraint("Symmetric", 2, 3, 6, 3, -1, 1))
sketch2.addConstraint(Sketcher.Constraint("Symmetric", 3, 3, 7, 3, -1, 1))
sketch2.addConstraint(Sketcher.Constraint("Symmetric", 4, 3, 8, 3, -1, 1))
sketch2.addConstraint(Sketcher.Constraint("Symmetric", 11, 2, 17, 2, -1, 1))
sketch2.addConstraint(Sketcher.Constraint("Symmetric", 15, 2, 21, 2, -1, 1))
sketch2.addConstraint(Sketcher.Constraint("Symmetric", 4, 3, 6, 3, -2))
sketch2.addConstraint(Sketcher.Constraint("Symmetric", 27, 3, 31, 3, -2))
sketch2.addConstraint(Sketcher.Constraint("Symmetric", 16, 2, 17, 2, -2))
sketch2.addConstraint(Sketcher.Constraint("PointOnObject", 1, 3, -2))
sketch2.addConstraint(Sketcher.Constraint("PointOnObject", 3, 3, -1))
sketch2.addConstraint(Sketcher.Constraint("Equal", 26, 32))
sketch2.addConstraint(Sketcher.Constraint("Radius", 10, 25.0))
sketch2.addConstraint(Sketcher.Constraint("Radius", 14, 15.0))
sketch2.addConstraint(Sketcher.Constraint("Radius", 27, 2.0))
sketch2.addConstraint(Sketcher.Constraint("Diameter", 0, 10.1))
sketch2.addConstraint(Sketcher.Constraint("Diameter", 1, 2.2))
sketch2.addConstraint(Sketcher.Constraint("Radius", 9, 4.9))
sketch2.addConstraint(Sketcher.Constraint("DistanceX", 26, 1, 26, 2, 26.0))
sketch2.addConstraint(Sketcher.Constraint("DistanceX", 29, 1, 29, 2, 53.0))
sketch2.addConstraint(Sketcher.Constraint("DistanceX", 36, 1, 36, 2, 40.0))
sketch2.addConstraint(Sketcher.Constraint("DistanceY", 25, 2, 25, 1, 22.0))
sketch2.addConstraint(Sketcher.Constraint("Angle", 12, Q("60 deg")))
sketch2.addConstraint(Sketcher.Constraint("DistanceY", 28, 1, 28, 2, 9.5))
sketch2.addConstraint(Sketcher.Constraint("DistanceY", -1, 1, 1, 3, 7.0))
sketch2.addConstraint(Sketcher.Constraint("DistanceX", 3, 3, -1, 1, 7.0))
sketch2.addConstraint(Sketcher.Constraint("DistanceY", -1, 1, 27, 3, 15.0))
sketch2.addConstraint(Sketcher.Constraint("DistanceX", 35, 2, -1, 1, 20.0))
sketch2.addConstraint(Sketcher.Constraint("DistanceY", 35, 2, -1, 1, 35.0))
sketch2.addConstraint(Sketcher.Constraint("DistanceY", 37, 2, 23, 3, 10.0))
sketch2.addConstraint(Sketcher.Constraint("DistanceX", 10, 2, 11, 2, 7.6541))
sketch2.addConstraint(Sketcher.Constraint("DistanceX", 9, 3, 2, 3, 9.040571))
sketch2.addConstraint(Sketcher.Constraint("DistanceY", 2, 3, 9, 2, 13.00043))
sketch2.setExpression("Constraints[76]", "Params.sketch2_radius")
sketch2.setExpression("Constraints[77]", "Params.sketch2_radius2")
sketch2.setExpression("Constraints[78]", "Params.sketch2_radius3")
sketch2.setExpression("Constraints[79]", "Params.sketch2_diameter")
sketch2.setExpression("Constraints[80]", "Params.sketch2_diameter2")
pocket1 = doc.addObject("PartDesign::Pocket", "Pocket")
body.addObject(pocket1)
pocket1.Profile = sketch2
pocket1.Type = "ThroughAll"

# Sketch on XY plane
sketch3 = doc.addObject("Sketcher::SketchObject", "Sketch002")
body.addObject(sketch3)
sketch3.AttachmentSupport = (doc.XY_Plane, [""])
sketch3.MapMode = "FlatFace"
sketch3.AttachmentOffset = App.Placement(V(0, 0, 1.5), App.Rotation())
sketch3.addGeometry(Part.LineSegment(V(-54, -29, 0), V(-54, -35, 0)), False)
sketch3.addGeometry(Part.LineSegment(V(-54, -35, 0), V(-20, -35, 0)), False)
sketch3.addGeometry(Part.LineSegment(V(-20, -35, 0), V(-20, -29, 0)), False)
sketch3.addGeometry(Part.LineSegment(V(-20, -29, 0), V(-54, -29, 0)), False)
sketch3.addGeometry(Part.LineSegment(V(20, -29, 0), V(20, -35, 0)), False)
sketch3.addGeometry(Part.LineSegment(V(20, -35, 0), V(54, -35, 0)), False)
sketch3.addGeometry(Part.LineSegment(V(54, -35, 0), V(54, -29, 0)), False)
sketch3.addGeometry(Part.LineSegment(V(54, -29, 0), V(20, -29, 0)), False)
sketch3.addConstraint(Sketcher.Constraint("Coincident", 0, 2, 1, 1))
sketch3.addConstraint(Sketcher.Constraint("Coincident", 1, 2, 2, 1))
sketch3.addConstraint(Sketcher.Constraint("Coincident", 2, 2, 3, 1))
sketch3.addConstraint(Sketcher.Constraint("Coincident", 3, 2, 0, 1))
sketch3.addConstraint(Sketcher.Constraint("Coincident", 4, 2, 5, 1))
sketch3.addConstraint(Sketcher.Constraint("Coincident", 5, 2, 6, 1))
sketch3.addConstraint(Sketcher.Constraint("Coincident", 6, 2, 7, 1))
sketch3.addConstraint(Sketcher.Constraint("Coincident", 7, 2, 4, 1))
sketch3.addConstraint(Sketcher.Constraint("Vertical", 0))
sketch3.addConstraint(Sketcher.Constraint("Horizontal", 1))
sketch3.addConstraint(Sketcher.Constraint("Vertical", 2))
sketch3.addConstraint(Sketcher.Constraint("Horizontal", 3))
sketch3.addConstraint(Sketcher.Constraint("Vertical", 4))
sketch3.addConstraint(Sketcher.Constraint("Horizontal", 5))
sketch3.addConstraint(Sketcher.Constraint("Vertical", 6))
sketch3.addConstraint(Sketcher.Constraint("Horizontal", 7))
sketch3.addConstraint(Sketcher.Constraint("Symmetric", 1, 2, 4, 2, -2))
sketch3.addConstraint(Sketcher.Constraint("Symmetric", 3, 2, 6, 2, -2))
sketch3.addConstraint(Sketcher.Constraint("DistanceY", 0, 2, 0, 1, 6.0))
sketch3.addConstraint(Sketcher.Constraint("DistanceX", 1, 1, 1, 2, 34.5))
sketch3.addConstraint(Sketcher.Constraint("DistanceY", 0, 2, -1, 1, 35.0))
sketch3.addConstraint(Sketcher.Constraint("DistanceX", 1, 2, -1, 1, 20.0))
sketch3.setExpression("Constraints[18]", "Params.sketch3_height")
sketch3.setExpression("Constraints[19]", "Params.sketch3_width")
pocket2 = doc.addObject("PartDesign::Pocket", "Pocket001")
body.addObject(pocket2)
pocket2.Profile = sketch3
pocket2.Type = "ThroughAll"
doc.recompute()

fillet = doc.addObject("PartDesign::Fillet", "Fillet")
body.addObject(fillet)
fillet.Base = (pocket2, edges_at(pocket2, [
    (-54.5, -29, 0.75),
    (-20, -29, 0.75),
    (20, -29, 0.75),
    (54.5, -29, 0.75),
    (-20, -24.432, 0.75),
    (20, -24.432, 0.75),
    (54.5, 13, 0.75),
    (26.5, 24.5, 0.75),
    (-26.5, 24.5, 0.75),
    (-54.5, 13, 0.75),
]))
fillet.setExpression("Radius", "Params.fillet_radius")

doc.recompute()
